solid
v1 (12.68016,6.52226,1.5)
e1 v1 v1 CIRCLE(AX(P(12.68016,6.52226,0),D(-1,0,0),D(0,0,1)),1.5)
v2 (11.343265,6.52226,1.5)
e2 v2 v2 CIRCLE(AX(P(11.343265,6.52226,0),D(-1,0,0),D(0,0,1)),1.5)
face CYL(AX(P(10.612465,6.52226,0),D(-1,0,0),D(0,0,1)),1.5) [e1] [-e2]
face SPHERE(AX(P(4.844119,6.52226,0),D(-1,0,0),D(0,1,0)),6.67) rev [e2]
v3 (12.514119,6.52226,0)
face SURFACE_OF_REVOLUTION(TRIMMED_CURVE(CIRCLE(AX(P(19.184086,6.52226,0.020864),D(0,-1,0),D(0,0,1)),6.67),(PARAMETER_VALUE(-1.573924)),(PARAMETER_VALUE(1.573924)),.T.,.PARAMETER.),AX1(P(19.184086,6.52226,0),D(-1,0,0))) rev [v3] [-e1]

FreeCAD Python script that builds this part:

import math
import FreeCAD as App
import Part
import Sketcher

V = App.Vector

doc = App.newDocument("Part")
params = doc.addObject("Spreadsheet::Sheet", "Params")
for row, (alias, value) in enumerate([
    ("sketch1_width", "1 mm"),
    ("sketch1_radius", "6.67 mm"),
    ("revolution_angle", "360 deg"),
], start=1):
    params.set(f"A{row}", alias)
    params.set(f"B{row}", "=" + value)
    params.setAlias(f"B{row}", alias)

body = doc.addObject("PartDesign::Body", "Body")

# Sketch on XY plane
sketch1 = body.newObject("Sketcher::SketchObject", "Sketch")
sketch1.AttachmentSupport = (doc.getObject("XY_Plane"), [""])
sketch1.MapMode = "FlatFace"
sketch1.addGeometry([
    Part.LineSegment(V(11.5, 6.5, 0), V(12.5, 6.5, 0)),
    Part.ArcOfCircle(Part.Circle(V(19.2, 6.5, 0), V(0, 0, 1), 6.7), math.radians(167.19), math.radians(180.18)),
    Part.LineSegment(V(12.7, 8, 0), V(11.3, 8, 0)),
    Part.ArcOfCircle(Part.Circle(V(4.8, 6.5, 0), V(0, 0, 1), 6.7), math.radians(0), math.radians(13)),
], False)
sketch1.addGeometry(Part.LineSegment(V(4.8, 6.5, 0), V(19.2, 6.5, 0)), True)  # axis
sketch1.addConstraint([
    Sketcher.Constraint("Coincident", 0, 2, 1, 2),
    Sketcher.Constraint("Coincident", 1, 1, 2, 1),
    Sketcher.Constraint("Coincident", 2, 2, 3, 2),
    Sketcher.Constraint("Coincident", 3, 1, 0, 1),
    Sketcher.Constraint("Horizontal", 0),
    Sketcher.Constraint("Horizontal", 2),
    Sketcher.Constraint("Horizontal", 4),
    Sketcher.Constraint("Coincident", 4, 1, 3, 3),
    Sketcher.Constraint("Equal", 1, 3),
    Sketcher.Constraint("Horizontal", 3, 3, 0, 2),
    Sketcher.Constraint("Vertical", 1, 3, 4, 2),
    Sketcher.Constraint("DistanceX", 0, 1, 0, 2, 1.0),
    Sketcher.Constraint("Radius", 1, 6.67),
    Sketcher.Constraint("DistanceY", 0, 2, 1, 1, 1.5),
    Sketcher.Constraint("DistanceX", 2, 2, 2, 1, 1.336895),
    Sketcher.Constraint("DistanceX", -1, 1, 3, 3, 4.844119),
    Sketcher.Constraint("DistanceY", -1, 1, 3, 3, 6.52226),
])
sketch1.setExpression("Constraints[11]", "Params.sketch1_width")
sketch1.setExpression("Constraints[12]", "Params.sketch1_radius")
revolution = body.newObject("PartDesign::Revolution", "Revolution")
revolution.Profile = sketch1
revolution.ReferenceAxis = (sketch1, ["Axis0"])
revolution.setExpression("Angle", "Params.revolution_angle")

doc.recompute()
